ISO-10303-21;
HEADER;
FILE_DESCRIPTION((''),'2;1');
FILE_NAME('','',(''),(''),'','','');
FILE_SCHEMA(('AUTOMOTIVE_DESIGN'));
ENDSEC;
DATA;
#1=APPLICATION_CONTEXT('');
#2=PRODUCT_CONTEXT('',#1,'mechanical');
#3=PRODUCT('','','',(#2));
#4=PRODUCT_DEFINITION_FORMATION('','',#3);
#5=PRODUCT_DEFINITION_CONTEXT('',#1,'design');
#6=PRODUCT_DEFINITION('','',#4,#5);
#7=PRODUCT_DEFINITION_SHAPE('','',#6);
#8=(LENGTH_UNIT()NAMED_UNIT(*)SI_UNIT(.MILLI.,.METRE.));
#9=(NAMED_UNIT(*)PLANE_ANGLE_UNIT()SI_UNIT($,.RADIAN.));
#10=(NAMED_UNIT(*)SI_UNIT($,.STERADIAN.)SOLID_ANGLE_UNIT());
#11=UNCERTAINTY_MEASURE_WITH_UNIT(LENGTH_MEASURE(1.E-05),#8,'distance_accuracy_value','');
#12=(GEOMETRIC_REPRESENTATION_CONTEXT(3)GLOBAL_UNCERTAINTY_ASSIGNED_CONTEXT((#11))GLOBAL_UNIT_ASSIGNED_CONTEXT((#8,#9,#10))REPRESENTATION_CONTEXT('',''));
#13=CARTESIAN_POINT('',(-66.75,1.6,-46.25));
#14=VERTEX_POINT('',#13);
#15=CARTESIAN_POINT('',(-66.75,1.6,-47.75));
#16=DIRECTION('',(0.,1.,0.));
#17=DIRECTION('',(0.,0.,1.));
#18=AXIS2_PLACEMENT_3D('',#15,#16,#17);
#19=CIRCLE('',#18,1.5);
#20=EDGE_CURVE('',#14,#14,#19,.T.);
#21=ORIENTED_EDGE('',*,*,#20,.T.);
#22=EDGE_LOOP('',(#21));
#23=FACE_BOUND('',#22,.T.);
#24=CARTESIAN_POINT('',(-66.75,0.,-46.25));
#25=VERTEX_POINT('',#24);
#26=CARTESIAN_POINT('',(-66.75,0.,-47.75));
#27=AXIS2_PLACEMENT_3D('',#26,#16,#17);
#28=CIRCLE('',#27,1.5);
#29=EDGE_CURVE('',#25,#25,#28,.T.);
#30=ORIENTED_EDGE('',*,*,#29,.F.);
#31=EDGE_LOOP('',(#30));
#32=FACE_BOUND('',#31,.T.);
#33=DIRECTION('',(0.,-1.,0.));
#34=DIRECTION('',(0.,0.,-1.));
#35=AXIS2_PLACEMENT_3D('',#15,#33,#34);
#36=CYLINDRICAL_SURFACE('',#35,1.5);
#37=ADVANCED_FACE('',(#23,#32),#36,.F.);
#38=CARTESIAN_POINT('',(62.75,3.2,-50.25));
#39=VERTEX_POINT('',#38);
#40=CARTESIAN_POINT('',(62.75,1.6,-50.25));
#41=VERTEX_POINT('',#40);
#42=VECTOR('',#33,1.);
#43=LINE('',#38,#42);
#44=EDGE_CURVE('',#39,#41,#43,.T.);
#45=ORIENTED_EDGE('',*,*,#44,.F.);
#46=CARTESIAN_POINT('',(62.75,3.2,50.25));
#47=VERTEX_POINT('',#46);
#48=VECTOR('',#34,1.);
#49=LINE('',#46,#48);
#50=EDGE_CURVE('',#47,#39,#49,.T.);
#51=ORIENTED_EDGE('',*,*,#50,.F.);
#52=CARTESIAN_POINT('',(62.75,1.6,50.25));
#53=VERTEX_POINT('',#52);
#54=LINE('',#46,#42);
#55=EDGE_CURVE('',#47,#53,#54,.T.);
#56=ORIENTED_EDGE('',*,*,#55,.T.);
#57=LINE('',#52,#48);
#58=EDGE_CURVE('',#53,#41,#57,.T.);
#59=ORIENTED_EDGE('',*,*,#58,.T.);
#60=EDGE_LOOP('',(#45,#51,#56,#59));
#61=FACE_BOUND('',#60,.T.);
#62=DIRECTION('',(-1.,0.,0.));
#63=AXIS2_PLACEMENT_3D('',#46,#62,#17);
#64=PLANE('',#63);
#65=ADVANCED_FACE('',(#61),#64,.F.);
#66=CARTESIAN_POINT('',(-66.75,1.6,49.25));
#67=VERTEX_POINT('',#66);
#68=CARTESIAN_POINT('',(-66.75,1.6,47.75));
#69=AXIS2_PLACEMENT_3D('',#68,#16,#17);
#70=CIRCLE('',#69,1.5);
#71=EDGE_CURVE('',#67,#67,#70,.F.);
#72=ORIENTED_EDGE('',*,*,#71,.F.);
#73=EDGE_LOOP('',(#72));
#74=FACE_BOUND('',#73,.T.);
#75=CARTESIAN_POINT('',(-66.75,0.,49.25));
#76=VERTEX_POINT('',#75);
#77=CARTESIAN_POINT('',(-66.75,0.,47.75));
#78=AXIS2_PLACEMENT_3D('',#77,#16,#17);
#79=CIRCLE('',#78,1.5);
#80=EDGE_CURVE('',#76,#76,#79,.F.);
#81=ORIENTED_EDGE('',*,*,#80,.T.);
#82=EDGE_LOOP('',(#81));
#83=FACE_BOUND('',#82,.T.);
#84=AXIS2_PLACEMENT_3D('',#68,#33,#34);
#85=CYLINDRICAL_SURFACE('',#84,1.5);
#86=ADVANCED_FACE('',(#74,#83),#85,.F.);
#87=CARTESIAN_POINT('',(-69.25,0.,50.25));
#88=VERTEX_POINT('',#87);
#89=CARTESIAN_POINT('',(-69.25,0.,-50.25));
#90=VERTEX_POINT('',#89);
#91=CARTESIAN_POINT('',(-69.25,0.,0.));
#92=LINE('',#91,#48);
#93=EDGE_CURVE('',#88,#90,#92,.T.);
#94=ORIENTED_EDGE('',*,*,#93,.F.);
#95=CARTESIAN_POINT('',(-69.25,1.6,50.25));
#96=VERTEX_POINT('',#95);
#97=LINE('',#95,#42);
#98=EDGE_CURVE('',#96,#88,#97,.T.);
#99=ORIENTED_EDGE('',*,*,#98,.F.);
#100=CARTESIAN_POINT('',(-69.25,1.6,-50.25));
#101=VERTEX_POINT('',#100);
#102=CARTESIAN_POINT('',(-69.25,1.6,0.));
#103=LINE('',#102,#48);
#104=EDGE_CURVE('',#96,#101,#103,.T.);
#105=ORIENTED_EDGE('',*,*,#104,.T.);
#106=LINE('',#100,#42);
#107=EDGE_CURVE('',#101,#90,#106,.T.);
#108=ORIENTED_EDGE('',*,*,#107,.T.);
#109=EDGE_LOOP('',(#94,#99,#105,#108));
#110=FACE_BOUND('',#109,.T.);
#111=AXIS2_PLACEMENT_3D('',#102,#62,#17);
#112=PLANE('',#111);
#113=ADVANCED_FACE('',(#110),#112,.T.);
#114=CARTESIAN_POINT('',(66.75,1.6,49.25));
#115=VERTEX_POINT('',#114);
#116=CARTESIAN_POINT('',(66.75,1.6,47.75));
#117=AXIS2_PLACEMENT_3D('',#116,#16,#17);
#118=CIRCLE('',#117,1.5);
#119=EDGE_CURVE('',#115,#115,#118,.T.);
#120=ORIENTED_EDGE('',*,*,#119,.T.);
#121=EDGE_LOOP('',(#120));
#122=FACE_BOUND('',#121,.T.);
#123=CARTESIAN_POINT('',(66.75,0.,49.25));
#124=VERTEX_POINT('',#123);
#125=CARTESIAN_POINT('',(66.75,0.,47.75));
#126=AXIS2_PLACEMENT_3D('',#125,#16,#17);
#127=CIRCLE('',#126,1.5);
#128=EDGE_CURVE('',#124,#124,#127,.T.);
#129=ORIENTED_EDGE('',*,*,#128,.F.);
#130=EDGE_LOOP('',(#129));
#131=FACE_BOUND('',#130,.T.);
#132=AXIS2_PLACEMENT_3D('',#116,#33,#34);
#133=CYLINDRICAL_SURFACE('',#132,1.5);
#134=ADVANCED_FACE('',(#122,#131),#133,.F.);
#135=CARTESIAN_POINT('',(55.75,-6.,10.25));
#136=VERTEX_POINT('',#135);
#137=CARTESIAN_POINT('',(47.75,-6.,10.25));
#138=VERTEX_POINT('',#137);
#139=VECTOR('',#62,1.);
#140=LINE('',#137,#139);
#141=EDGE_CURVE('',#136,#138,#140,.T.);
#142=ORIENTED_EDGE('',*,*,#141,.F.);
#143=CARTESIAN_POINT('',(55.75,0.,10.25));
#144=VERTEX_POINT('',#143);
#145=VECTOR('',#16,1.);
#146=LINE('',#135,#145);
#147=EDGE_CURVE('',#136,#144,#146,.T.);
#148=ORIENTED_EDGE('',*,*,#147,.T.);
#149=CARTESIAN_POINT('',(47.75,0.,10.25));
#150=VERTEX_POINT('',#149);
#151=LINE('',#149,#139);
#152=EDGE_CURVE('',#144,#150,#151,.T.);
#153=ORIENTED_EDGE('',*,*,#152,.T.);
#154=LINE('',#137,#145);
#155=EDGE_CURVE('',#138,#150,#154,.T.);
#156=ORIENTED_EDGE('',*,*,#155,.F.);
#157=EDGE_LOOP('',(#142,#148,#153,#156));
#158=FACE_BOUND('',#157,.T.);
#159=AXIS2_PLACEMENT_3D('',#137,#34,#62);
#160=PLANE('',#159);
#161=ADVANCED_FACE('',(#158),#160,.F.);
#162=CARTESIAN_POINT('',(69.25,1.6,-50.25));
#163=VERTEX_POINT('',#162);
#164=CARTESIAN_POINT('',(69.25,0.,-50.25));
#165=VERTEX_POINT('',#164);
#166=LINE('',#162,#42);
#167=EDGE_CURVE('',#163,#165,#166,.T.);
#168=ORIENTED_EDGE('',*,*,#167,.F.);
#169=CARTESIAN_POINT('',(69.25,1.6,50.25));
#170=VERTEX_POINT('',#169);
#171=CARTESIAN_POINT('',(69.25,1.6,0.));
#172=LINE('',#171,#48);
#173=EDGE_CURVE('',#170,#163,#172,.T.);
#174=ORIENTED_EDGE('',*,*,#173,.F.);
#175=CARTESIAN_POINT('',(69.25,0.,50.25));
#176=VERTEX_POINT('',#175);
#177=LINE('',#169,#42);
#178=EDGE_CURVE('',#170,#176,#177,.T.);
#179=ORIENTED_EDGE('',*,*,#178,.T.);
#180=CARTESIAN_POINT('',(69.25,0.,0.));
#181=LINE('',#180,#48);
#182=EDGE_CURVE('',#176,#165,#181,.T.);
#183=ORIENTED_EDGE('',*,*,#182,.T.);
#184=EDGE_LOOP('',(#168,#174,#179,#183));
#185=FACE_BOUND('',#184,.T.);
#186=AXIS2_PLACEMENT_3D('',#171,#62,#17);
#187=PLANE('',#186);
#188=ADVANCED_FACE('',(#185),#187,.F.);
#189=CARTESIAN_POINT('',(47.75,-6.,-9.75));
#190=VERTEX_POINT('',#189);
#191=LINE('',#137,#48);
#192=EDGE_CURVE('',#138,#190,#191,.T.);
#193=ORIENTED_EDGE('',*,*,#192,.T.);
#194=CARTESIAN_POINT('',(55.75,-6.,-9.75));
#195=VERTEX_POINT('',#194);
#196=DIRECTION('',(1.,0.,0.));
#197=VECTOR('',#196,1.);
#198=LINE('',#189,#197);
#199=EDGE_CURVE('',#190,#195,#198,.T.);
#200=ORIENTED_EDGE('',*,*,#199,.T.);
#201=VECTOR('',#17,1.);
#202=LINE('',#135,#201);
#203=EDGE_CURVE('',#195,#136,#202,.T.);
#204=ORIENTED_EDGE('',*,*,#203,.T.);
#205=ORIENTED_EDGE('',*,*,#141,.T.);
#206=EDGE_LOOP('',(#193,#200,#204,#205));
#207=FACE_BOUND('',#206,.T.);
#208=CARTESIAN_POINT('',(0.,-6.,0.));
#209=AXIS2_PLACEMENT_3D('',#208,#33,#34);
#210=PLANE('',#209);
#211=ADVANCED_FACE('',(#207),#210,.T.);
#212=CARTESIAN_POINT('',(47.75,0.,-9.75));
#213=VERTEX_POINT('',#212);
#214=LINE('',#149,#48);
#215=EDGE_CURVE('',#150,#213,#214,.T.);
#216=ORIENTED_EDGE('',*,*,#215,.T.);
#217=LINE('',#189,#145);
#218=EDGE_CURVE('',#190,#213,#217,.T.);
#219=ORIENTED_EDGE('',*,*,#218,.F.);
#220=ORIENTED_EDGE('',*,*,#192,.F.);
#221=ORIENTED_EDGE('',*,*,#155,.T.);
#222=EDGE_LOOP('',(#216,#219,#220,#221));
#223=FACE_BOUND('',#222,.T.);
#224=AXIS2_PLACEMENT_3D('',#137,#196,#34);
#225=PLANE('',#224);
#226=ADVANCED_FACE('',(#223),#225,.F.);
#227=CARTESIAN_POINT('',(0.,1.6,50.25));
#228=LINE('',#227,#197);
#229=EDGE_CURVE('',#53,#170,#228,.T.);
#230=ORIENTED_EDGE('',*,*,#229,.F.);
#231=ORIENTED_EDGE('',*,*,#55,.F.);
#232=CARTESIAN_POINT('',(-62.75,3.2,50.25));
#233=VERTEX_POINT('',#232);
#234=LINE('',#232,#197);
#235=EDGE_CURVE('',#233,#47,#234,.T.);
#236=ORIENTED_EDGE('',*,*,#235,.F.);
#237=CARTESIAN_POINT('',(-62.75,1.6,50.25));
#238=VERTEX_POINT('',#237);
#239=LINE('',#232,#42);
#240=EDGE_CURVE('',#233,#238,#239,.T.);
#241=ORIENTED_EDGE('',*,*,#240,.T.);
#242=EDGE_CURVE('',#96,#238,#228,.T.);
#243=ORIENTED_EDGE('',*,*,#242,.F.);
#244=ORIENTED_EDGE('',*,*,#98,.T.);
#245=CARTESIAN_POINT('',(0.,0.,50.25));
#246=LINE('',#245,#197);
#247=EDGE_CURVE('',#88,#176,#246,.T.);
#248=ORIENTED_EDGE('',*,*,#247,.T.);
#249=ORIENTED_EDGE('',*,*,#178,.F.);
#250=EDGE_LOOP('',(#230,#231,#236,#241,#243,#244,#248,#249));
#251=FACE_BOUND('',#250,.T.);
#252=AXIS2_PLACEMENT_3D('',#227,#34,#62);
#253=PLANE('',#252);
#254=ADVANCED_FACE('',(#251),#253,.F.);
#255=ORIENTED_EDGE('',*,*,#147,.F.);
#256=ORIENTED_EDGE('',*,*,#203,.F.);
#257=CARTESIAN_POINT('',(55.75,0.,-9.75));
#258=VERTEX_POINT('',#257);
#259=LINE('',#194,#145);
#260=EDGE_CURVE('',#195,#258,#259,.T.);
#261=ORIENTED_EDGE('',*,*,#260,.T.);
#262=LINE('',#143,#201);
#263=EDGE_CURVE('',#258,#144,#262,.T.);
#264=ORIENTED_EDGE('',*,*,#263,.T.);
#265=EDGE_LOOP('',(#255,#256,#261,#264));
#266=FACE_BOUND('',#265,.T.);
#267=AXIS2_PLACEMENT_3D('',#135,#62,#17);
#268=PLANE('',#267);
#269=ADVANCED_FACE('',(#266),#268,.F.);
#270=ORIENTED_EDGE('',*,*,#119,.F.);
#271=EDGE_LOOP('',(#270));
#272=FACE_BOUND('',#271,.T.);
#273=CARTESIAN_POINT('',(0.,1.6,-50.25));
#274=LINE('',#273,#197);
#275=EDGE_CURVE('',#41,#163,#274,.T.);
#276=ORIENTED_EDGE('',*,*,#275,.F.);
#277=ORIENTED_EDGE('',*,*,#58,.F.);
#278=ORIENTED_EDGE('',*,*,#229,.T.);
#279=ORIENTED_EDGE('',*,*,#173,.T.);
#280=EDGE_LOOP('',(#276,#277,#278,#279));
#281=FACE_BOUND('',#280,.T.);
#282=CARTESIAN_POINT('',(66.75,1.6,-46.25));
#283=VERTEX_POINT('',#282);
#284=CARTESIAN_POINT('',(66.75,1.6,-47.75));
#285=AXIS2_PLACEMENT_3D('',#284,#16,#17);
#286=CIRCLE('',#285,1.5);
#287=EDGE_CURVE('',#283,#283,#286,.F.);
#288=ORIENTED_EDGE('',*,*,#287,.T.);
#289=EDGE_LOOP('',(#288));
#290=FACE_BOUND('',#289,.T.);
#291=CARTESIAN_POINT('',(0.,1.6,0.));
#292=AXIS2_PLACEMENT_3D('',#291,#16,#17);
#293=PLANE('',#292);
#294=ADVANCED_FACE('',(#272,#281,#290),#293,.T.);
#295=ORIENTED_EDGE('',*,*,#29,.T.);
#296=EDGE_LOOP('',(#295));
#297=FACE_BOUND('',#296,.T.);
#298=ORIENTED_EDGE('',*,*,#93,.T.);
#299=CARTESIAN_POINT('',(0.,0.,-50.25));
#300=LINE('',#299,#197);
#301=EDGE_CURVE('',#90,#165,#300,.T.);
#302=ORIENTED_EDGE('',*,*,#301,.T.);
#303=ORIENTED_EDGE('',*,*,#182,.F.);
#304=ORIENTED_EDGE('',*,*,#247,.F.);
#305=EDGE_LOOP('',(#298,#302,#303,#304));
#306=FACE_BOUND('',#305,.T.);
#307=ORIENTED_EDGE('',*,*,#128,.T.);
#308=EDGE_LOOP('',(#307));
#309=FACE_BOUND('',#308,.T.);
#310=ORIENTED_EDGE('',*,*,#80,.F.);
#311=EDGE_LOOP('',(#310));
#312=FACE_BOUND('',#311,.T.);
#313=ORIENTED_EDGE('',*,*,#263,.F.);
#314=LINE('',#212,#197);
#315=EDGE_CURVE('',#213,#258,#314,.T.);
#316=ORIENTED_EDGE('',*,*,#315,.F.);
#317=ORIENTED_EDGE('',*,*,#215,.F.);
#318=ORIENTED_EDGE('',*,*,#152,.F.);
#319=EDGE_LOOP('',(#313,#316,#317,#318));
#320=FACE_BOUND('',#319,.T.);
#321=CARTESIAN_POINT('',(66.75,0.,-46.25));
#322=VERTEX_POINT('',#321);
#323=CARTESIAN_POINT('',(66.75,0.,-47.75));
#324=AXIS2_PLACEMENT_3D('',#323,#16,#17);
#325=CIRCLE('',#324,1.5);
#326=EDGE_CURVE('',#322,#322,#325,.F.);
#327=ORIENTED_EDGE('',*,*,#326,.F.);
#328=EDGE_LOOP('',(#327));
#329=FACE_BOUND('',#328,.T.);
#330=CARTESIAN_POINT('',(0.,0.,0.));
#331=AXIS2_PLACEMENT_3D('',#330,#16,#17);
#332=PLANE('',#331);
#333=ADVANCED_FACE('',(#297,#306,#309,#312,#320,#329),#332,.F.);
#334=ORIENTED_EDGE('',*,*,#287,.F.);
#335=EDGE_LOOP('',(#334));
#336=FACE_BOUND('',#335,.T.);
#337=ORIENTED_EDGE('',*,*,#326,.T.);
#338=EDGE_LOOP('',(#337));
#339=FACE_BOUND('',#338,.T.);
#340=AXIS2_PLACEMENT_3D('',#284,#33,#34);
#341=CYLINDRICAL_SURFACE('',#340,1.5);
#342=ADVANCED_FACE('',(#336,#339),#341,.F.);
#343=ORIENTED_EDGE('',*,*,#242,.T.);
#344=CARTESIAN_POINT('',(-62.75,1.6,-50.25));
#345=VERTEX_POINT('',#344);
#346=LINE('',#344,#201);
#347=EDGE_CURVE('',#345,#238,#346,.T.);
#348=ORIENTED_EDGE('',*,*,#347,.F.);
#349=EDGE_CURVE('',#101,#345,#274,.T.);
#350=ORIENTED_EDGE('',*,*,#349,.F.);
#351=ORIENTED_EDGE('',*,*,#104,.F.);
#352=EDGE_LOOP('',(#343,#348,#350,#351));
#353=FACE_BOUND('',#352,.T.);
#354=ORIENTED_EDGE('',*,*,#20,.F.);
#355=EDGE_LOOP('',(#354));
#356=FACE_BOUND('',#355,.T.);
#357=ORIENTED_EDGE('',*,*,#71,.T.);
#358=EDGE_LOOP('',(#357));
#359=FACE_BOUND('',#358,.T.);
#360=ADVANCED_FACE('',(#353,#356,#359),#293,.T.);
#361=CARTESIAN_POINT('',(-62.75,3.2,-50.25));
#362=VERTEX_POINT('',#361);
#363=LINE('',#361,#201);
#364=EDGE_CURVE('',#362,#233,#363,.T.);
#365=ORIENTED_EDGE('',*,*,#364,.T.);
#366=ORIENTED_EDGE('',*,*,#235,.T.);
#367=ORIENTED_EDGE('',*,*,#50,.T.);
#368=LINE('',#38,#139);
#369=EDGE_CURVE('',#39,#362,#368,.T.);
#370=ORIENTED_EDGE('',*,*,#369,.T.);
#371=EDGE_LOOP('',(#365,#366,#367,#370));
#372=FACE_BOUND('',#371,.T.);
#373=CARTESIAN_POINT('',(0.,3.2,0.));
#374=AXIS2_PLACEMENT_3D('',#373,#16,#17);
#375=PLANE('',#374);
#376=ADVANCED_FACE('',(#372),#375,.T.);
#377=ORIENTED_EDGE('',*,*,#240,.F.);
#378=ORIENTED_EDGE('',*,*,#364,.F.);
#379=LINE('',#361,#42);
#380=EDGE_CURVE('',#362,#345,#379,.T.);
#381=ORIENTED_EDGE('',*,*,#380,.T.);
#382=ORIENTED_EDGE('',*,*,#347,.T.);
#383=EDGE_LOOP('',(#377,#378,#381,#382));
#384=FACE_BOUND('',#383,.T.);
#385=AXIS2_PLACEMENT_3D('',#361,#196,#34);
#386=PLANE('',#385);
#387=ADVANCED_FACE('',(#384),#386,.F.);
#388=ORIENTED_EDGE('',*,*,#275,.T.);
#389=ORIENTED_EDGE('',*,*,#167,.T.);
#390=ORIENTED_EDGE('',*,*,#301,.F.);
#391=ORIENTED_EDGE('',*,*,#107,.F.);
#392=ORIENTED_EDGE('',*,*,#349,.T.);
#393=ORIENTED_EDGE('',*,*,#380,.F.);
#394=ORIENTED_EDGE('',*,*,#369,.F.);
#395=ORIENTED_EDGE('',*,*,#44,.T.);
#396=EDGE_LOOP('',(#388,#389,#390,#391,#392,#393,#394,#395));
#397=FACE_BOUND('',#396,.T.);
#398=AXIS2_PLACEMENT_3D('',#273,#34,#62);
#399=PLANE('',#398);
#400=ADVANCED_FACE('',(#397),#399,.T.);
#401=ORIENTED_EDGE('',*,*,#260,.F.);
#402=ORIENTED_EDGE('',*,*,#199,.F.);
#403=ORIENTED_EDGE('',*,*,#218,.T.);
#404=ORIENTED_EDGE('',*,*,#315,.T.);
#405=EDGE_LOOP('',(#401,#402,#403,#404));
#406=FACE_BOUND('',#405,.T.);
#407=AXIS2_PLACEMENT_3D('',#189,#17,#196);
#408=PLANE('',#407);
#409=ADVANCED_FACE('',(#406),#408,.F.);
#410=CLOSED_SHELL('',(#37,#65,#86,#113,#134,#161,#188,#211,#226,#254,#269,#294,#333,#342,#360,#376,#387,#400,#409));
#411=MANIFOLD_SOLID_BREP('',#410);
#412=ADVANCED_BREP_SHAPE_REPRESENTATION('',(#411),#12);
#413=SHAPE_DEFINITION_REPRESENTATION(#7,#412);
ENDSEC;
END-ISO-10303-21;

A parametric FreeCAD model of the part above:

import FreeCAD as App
import Part
import Sketcher

doc = App.newDocument("Part")
body = doc.addObject("PartDesign::Body", "Body")

# Sketch on XZ plane
sketch1 = doc.addObject("Sketcher::SketchObject", "Sketch")
body.addObject(sketch1)
sketch1.AttachmentSupport = (doc.XZ_Plane, [""])
sketch1.MapMode = "FlatFace"
sketch1.addGeometry([
    Part.LineSegment(App.Vector(-69.2, -50.2, 0), App.Vector(-69.2, 50.2, 0)),  # 0
    Part.LineSegment(App.Vector(-69.2, 50.2, 0), App.Vector(69.2, 50.2, 0)),  # 1
    Part.LineSegment(App.Vector(69.2, 50.2, 0), App.Vector(69.2, -50.2, 0)),  # 2
    Part.LineSegment(App.Vector(69.2, -50.2, 0), App.Vector(-69.2, -50.2, 0)),  # 3
    Part.Circle(App.Vector(-66.8, 47.8, 0), App.Vector(0, 0, 1), 1.5),  # 4
    Part.Circle(App.Vector(66.8, 47.8, 0), App.Vector(0, 0, 1), 1.5),  # 5
    Part.Circle(App.Vector(-66.8, -47.8, 0), App.Vector(0, 0, 1), 1.5),  # 6
    Part.Circle(App.Vector(66.8, -47.8, 0), App.Vector(0, 0, 1), 1.5),  # 7
], False)
sketch1.addConstraint([
    Sketcher.Constraint("Coincident", 0, 2, 1, 1),
    Sketcher.Constraint("Coincident", 1, 2, 2, 1),
    Sketcher.Constraint("Coincident", 2, 2, 3, 1),
    Sketcher.Constraint("Coincident", 3, 2, 0, 1),
    Sketcher.Constraint("Vertical", 0),
    Sketcher.Constraint("Horizontal", 1),
    Sketcher.Constraint("Vertical", 2),
    Sketcher.Constraint("Horizontal", 3),
    Sketcher.Constraint("Equal", 4, 5),
    Sketcher.Constraint("Equal", 5, 6),
    Sketcher.Constraint("Equal", 6, 7),
    Sketcher.Constraint("Symmetric", 5, 3, 6, 3, -1, 1),
    Sketcher.Constraint("Symmetric", 4, 3, 7, 3, -1, 1),
    Sketcher.Constraint("Symmetric", 0, 2, 2, 2, -1, 1),
    Sketcher.Constraint("Symmetric", 4, 3, 5, 3, -2),
    Sketcher.Constraint("Diameter", 4, 3.0),
    Sketcher.Constraint("DistanceX", 1, 1, 1, 2, 138.5),
    Sketcher.Constraint("DistanceY", 0, 1, 0, 2, 100.5),
    Sketcher.Constraint("DistanceY", 6, 3, 0, 2, 98.0),
    Sketcher.Constraint("DistanceX", 0, 2, 5, 3, 136.0),
])
pad1 = doc.addObject("PartDesign::Pad", "Pad")
body.addObject(pad1)
pad1.Profile = sketch1
pad1.Length = 1.6
pad1.Reversed = True

# Sketch on XZ plane
sketch2 = doc.addObject("Sketcher::SketchObject", "Sketch001")
body.addObject(sketch2)
sketch2.AttachmentSupport = (doc.XZ_Plane, [""])
sketch2.MapMode = "FlatFace"
sketch2.AttachmentOffset = App.Placement(App.Vector(0, 0, -1.6), App.Rotation())
sketch2.addGeometry([
    Part.LineSegment(App.Vector(-63, -50, 0), App.Vector(-63, 50, 0)),
    Part.LineSegment(App.Vector(-63, 50, 0), App.Vector(63, 50, 0)),
    Part.LineSegment(App.Vector(63, 50, 0), App.Vector(63, -50, 0)),
    Part.LineSegment(App.Vector(63, -50, 0), App.Vector(-63, -50, 0)),
], False)
sketch2.addConstraint([
    Sketcher.Constraint("Coincident", 0, 2, 1, 1),
    Sketcher.Constraint("Coincident", 1, 2, 2, 1),
    Sketcher.Constraint("Coincident", 2, 2, 3, 1),
    Sketcher.Constraint("Coincident", 3, 2, 0, 1),
    Sketcher.Constraint("Vertical", 0),
    Sketcher.Constraint("Horizontal", 1),
    Sketcher.Constraint("Vertical", 2),
    Sketcher.Constraint("Horizontal", 3),
    Sketcher.Constraint("Symmetric", 0, 2, 2, 2, -1, 1),
    Sketcher.Constraint("DistanceX", 1, 1, 1, 2, 125.5),
    Sketcher.Constraint("DistanceY", 0, 1, 0, 2, 100.5),
])
pad2 = doc.addObject("PartDesign::Pad", "Pad001")
body.addObject(pad2)
pad2.Profile = sketch2
pad2.Length = 1.6
pad2.Reversed = True

# Sketch on XZ plane
sketch3 = doc.addObject("Sketcher::SketchObject", "Sketch002")
body.addObject(sketch3)
sketch3.AttachmentSupport = (doc.XZ_Plane, [""])
sketch3.MapMode = "FlatFace"
sketch3.addGeometry([
    Part.LineSegment(App.Vector(48, 10, 0), App.Vector(48, -10, 0)),
    Part.LineSegment(App.Vector(48, -10, 0), App.Vector(56, -10, 0)),
    Part.LineSegment(App.Vector(56, -10, 0), App.Vector(56, 10, 0)),
    Part.LineSegment(App.Vector(56, 10, 0), App.Vector(48, 10, 0)),
], False)
sketch3.addConstraint([
    Sketcher.Constraint("Coincident", 0, 2, 1, 1),
    Sketcher.Constraint("Coincident", 1, 2, 2, 1),
    Sketcher.Constraint("Coincident", 2, 2, 3, 1),
    Sketcher.Constraint("Coincident", 3, 2, 0, 1),
    Sketcher.Constraint("Vertical", 0),
    Sketcher.Constraint("Horizontal", 1),
    Sketcher.Constraint("Vertical", 2),
    Sketcher.Constraint("Horizontal", 3),
    Sketcher.Constraint("DistanceX", 1, 1, 1, 2, 8.0),
    Sketcher.Constraint("DistanceY", 0, 2, 0, 1, 20.0),
    Sketcher.Constraint("DistanceX", -1, 1, 0, 2, 47.75),
    Sketcher.Constraint("DistanceY", 0, 2, -1, 1, 9.75),
])
pad3 = doc.addObject("PartDesign::Pad", "Pad002")
body.addObject(pad3)
pad3.Profile = sketch3
pad3.Length = 6

doc.recompute()
